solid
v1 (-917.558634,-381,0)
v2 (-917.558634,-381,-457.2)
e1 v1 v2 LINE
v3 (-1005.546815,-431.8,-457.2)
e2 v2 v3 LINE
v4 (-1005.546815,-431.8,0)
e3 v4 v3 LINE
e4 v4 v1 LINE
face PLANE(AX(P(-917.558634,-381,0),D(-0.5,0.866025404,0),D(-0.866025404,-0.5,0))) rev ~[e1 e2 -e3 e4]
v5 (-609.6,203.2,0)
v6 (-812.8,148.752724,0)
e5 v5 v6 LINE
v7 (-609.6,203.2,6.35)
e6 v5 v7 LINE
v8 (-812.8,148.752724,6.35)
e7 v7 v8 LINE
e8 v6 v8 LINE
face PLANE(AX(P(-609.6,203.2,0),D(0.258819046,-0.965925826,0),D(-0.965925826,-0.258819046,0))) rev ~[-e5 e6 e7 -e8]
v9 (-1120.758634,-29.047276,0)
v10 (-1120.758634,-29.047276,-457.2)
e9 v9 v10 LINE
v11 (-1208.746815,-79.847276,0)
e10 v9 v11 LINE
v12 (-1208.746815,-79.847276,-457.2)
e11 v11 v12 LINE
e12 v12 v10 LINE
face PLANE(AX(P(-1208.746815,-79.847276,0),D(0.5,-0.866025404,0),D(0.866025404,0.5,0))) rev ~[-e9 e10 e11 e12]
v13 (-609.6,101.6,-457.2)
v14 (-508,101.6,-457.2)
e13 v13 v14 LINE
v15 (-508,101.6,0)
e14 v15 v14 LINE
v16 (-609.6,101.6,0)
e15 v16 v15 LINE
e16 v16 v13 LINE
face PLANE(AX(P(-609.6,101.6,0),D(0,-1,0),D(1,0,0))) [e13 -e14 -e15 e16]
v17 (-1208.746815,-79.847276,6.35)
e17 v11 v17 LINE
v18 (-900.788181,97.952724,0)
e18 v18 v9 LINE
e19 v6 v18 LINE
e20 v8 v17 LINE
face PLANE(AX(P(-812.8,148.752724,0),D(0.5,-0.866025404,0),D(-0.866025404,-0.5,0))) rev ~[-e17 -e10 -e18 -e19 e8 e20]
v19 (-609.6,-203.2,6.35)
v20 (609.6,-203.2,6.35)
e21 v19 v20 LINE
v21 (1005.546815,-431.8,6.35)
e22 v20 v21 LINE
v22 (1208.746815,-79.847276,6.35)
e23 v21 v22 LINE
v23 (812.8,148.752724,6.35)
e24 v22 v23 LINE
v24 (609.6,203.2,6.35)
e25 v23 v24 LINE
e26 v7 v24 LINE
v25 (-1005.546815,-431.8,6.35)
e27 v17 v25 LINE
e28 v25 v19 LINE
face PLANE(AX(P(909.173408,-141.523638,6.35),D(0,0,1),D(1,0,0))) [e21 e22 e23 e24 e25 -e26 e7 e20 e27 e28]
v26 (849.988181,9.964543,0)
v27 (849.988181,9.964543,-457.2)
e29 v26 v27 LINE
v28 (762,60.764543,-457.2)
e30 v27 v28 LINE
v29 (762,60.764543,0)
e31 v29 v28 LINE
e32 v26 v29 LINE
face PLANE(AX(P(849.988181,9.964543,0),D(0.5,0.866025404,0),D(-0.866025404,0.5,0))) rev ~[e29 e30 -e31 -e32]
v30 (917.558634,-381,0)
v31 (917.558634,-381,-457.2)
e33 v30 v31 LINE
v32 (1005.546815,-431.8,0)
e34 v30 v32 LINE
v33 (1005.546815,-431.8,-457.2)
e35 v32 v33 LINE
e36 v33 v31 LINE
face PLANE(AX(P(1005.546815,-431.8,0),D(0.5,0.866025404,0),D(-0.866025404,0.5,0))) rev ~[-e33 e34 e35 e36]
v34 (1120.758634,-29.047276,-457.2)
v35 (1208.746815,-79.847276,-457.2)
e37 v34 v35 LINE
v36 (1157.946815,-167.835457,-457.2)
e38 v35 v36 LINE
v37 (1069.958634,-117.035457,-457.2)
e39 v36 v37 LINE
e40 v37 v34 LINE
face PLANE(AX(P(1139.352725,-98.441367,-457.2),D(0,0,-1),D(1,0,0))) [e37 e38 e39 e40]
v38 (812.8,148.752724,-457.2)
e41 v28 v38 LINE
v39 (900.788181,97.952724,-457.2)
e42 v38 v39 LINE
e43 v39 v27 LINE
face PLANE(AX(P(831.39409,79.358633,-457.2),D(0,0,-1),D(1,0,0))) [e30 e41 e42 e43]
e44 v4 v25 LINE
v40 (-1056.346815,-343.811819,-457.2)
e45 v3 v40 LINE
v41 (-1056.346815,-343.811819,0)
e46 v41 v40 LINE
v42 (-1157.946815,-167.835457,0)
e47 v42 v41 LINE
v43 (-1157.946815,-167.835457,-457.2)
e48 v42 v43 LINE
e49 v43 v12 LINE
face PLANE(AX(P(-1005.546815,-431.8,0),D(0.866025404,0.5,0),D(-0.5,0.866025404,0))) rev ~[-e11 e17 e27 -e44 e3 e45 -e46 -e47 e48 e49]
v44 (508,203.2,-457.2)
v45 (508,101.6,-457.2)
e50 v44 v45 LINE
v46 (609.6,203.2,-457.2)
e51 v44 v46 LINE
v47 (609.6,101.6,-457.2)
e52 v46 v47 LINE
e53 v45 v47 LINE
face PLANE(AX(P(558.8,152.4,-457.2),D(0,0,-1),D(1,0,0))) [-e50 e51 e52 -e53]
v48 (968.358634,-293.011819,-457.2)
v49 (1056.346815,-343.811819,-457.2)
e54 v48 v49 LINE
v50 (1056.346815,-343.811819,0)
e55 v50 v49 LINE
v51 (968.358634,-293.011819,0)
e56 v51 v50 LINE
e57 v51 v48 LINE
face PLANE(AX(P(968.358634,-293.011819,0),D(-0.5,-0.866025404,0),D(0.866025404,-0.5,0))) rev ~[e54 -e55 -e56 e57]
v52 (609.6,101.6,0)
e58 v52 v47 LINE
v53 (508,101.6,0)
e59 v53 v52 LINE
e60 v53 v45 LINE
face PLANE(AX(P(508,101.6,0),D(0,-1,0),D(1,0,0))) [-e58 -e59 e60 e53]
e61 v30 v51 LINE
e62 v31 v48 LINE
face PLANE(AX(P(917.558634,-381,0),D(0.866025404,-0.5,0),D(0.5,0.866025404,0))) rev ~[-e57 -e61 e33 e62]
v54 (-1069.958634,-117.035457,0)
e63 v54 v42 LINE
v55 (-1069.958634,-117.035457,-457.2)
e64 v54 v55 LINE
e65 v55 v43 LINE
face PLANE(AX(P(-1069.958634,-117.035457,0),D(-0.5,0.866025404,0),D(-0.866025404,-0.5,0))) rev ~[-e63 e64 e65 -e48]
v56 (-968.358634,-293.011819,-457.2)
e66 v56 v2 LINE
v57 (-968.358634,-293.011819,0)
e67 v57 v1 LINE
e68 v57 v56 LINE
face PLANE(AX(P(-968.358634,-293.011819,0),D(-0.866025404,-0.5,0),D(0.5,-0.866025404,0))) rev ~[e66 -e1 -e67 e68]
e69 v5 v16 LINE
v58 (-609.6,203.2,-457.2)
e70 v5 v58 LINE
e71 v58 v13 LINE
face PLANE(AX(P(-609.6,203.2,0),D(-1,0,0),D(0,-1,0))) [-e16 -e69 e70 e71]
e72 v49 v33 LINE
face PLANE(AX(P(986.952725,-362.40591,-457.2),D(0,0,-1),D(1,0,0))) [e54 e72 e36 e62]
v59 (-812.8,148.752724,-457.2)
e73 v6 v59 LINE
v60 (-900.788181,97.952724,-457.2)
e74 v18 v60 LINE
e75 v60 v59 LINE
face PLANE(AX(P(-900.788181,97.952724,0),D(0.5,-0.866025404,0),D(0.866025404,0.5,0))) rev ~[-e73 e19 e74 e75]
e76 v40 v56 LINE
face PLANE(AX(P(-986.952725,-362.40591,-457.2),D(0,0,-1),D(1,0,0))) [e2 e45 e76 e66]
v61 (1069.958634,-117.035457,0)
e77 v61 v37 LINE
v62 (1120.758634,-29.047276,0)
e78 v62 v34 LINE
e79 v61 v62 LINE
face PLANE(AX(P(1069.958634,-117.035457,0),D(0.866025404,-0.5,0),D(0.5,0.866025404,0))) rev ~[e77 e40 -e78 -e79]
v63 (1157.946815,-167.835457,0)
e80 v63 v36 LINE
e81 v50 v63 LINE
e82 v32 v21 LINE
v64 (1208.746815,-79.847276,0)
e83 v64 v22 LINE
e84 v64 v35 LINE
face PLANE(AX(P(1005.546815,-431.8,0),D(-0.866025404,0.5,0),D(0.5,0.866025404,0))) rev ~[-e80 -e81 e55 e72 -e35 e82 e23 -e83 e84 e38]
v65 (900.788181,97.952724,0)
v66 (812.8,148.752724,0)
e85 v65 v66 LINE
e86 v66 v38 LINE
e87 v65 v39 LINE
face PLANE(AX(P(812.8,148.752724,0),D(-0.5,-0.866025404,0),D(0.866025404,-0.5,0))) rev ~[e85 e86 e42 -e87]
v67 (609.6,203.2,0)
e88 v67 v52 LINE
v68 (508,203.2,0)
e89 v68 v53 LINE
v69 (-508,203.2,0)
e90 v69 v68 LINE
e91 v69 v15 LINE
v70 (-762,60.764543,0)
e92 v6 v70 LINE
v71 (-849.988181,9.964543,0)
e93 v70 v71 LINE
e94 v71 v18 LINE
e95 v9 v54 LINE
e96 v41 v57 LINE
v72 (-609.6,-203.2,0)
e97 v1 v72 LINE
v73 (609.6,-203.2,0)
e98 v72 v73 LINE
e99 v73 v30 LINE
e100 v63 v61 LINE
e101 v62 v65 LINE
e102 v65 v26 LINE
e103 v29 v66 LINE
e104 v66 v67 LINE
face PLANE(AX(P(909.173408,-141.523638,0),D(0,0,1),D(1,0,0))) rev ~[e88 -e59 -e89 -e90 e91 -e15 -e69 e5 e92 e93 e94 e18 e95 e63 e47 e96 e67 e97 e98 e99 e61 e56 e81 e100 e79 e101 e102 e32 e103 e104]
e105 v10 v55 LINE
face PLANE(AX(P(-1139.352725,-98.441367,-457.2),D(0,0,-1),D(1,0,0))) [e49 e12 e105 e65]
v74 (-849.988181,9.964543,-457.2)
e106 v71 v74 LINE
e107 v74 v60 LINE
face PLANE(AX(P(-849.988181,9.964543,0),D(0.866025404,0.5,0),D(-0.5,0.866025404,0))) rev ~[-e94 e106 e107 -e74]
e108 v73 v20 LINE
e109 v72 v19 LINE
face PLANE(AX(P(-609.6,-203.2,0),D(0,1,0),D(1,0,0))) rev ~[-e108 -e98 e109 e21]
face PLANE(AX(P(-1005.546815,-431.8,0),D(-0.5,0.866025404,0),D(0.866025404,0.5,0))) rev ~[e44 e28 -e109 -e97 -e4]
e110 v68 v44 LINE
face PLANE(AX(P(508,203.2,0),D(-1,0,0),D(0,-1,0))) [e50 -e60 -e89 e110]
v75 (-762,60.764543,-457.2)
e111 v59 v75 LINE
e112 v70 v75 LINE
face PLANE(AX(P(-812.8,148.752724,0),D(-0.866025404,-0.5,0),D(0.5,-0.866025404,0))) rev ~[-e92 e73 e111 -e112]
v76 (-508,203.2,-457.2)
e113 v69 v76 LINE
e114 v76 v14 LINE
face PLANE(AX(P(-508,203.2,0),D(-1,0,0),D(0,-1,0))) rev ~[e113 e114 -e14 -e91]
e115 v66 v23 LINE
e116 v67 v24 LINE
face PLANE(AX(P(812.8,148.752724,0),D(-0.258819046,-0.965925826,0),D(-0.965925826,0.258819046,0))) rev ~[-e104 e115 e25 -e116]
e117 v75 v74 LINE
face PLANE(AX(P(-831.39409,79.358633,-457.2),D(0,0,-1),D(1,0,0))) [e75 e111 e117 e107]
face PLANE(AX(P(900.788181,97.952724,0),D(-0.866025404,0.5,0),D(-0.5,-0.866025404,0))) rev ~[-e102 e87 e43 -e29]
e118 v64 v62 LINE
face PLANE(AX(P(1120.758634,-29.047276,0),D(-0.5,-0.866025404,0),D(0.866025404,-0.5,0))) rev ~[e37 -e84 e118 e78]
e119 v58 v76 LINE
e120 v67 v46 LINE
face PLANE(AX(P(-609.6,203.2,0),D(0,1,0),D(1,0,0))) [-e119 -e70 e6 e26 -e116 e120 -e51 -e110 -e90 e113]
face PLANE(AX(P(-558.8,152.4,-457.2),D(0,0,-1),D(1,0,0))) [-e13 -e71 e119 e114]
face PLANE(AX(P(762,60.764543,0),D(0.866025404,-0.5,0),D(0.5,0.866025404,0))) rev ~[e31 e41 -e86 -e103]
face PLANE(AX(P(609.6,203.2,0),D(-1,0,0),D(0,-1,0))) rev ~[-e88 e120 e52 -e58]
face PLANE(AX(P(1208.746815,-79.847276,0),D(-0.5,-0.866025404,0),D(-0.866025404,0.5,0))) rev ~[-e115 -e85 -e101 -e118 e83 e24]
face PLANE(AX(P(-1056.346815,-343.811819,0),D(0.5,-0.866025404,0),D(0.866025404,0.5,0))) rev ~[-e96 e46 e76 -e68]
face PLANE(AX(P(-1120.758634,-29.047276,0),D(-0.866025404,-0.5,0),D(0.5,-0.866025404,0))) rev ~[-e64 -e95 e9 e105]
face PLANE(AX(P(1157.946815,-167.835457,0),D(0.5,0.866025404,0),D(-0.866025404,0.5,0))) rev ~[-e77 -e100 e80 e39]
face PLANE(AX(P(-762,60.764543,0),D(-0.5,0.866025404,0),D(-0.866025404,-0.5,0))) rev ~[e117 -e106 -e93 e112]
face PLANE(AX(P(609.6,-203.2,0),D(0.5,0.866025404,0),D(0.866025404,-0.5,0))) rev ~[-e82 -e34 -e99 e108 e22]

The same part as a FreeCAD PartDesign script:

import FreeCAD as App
import Part
import Sketcher
Q = App.Units.Quantity


def add_polygon(sketch, points):
    """Adds a closed chain of lines whose ends are joined by coincident constraints."""
    first, n = sketch.GeometryCount, len(points)
    for a, b in zip(points, points[1:] + points[:1]):
        sketch.addGeometry(Part.LineSegment(App.Vector(*a, 0), App.Vector(*b, 0)), False)
    for i in range(n):
        sketch.addConstraint(Sketcher.Constraint("Coincident", first + i, 2, first + (i + 1) % n, 1))

doc = App.newDocument("Part")
params = doc.addObject("Spreadsheet::Sheet", "Params")
for row, (alias, value) in enumerate([
    ("sketch1_width", "48 in"),
    ("sketch1_length", "18 in"),
    ("sketch1_length2", "16 in"),
    ("pad1_length", "0.25 in"),
    ("sketch2_width", "4 in"),
    ("sketch2_length", "4 in"),
    ("pad2_length", "18 in"),
], start=1):
    params.set(f"A{row}", alias)
    params.set(f"B{row}", "=" + value)
    params.setAlias(f"B{row}", alias)

body = doc.addObject("PartDesign::Body", "Body")

sketch1 = body.newObject("Sketcher::SketchObject", "Sketch")
sketch1.AttachmentSupport = (doc.getObject("XY_Plane"), [""])
sketch1.MapMode = "FlatFace"
add_polygon(sketch1, [(610, -203), (1006, -432), (1209, -80), (813, 149), (610, 203), (-610, 203), (-813, 149), (-1209, -80), (-1006, -432), (-610, -203)])
sketch1.addConstraint(Sketcher.Constraint("Horizontal", 4))
sketch1.addConstraint(Sketcher.Constraint("Horizontal", 9))
sketch1.addConstraint(Sketcher.Constraint("Symmetric", 3, 2, 8, 2, -1, 1))
sketch1.addConstraint(Sketcher.Constraint("Symmetric", 2, 2, 5, 2, -2))
sketch1.addConstraint(Sketcher.Constraint("Symmetric", 1, 2, 6, 2, -2))
sketch1.addConstraint(Sketcher.Constraint("Symmetric", 0, 2, 7, 2, -2))
sketch1.addConstraint(Sketcher.Constraint("Perpendicular", 0, 1))
sketch1.addConstraint(Sketcher.Constraint("Perpendicular", 1, 2))
sketch1.addConstraint(Sketcher.Constraint("Perpendicular", 7, 8))
sketch1.addConstraint(Sketcher.Constraint("Vertical", 4, 2, 8, 2))
sketch1.addConstraint(Sketcher.Constraint("Equal", 0, 2))
sketch1.addConstraint(Sketcher.Constraint("DistanceX", 4, 2, 4, 1, Q("48 in")))
sketch1.addConstraint(Sketcher.Constraint("Distance", 0, Q("18 in")))
sketch1.addConstraint(Sketcher.Constraint("Distance", 1, Q("16 in")))
sketch1.addConstraint(Sketcher.Constraint("DistanceY", 0, 2, -1, 1, Q("17 in")))
sketch1.addConstraint(Sketcher.Constraint("DistanceX", -1, 1, 2, 2, Q("32 in")))
sketch1.setExpression("Constraints[21]", "Params.sketch1_width")
sketch1.setExpression("Constraints[22]", "Params.sketch1_length")
sketch1.setExpression("Constraints[23]", "Params.sketch1_length2")
pad1 = body.newObject("PartDesign::Pad", "Pad")
pad1.Profile = sketch1
pad1.setExpression("Length", "Params.pad1_length")

sketch2 = body.newObject("Sketcher::SketchObject", "Sketch001")
sketch2.AttachmentSupport = (doc.getObject("XY_Plane"), [""])
sketch2.MapMode = "FlatFace"
add_polygon(sketch2, [(-968, -293), (-918, -381), (-1006, -432), (-1056, -344)])
add_polygon(sketch2, [(-1209, -80), (-1121, -29), (-1070, -117), (-1158, -168)])
add_polygon(sketch2, [(-901, 98), (-813, 149), (-762, 61), (-850, 10)])
add_polygon(sketch2, [(-610, 102), (-610, 203), (-508, 203), (-508, 102)])
add_polygon(sketch2, [(968, -293), (1056, -344), (1006, -432), (918, -381)])
add_polygon(sketch2, [(1121, -29), (1209, -80), (1158, -168), (1070, -117)])
add_polygon(sketch2, [(813, 149), (901, 98), (850, 10), (762, 61)])
add_polygon(sketch2, [(508, 102), (508, 203), (610, 203), (610, 102)])
sketch2.addConstraint(Sketcher.Constraint("Vertical", 12))
sketch2.addConstraint(Sketcher.Constraint("Horizontal", 13))
sketch2.addConstraint(Sketcher.Constraint("Vertical", 14))
sketch2.addConstraint(Sketcher.Constraint("Horizontal", 15))
sketch2.addConstraint(Sketcher.Constraint("Vertical", 28))
sketch2.addConstraint(Sketcher.Constraint("Horizontal", 29))
sketch2.addConstraint(Sketcher.Constraint("Vertical", 30))
sketch2.addConstraint(Sketcher.Constraint("Horizontal", 31))
sketch2.addConstraint(Sketcher.Constraint("Symmetric", 2, 2, 16, 2, -2))
sketch2.addConstraint(Sketcher.Constraint("Symmetric", 1, 2, 17, 2, -2))
sketch2.addConstraint(Sketcher.Constraint("Symmetric", 0, 2, 18, 2, -2))
sketch2.addConstraint(Sketcher.Constraint("Symmetric", 3, 2, 19, 2, -2))
sketch2.addConstraint(Sketcher.Constraint("Symmetric", 7, 2, 20, 2, -2))
sketch2.addConstraint(Sketcher.Constraint("Symmetric", 6, 2, 21, 2, -2))
sketch2.addConstraint(Sketcher.Constraint("Symmetric", 5, 2, 22, 2, -2))
sketch2.addConstraint(Sketcher.Constraint("Symmetric", 4, 2, 23, 2, -2))
sketch2.addConstraint(Sketcher.Constraint("Symmetric", 11, 2, 24, 2, -2))
sketch2.addConstraint(Sketcher.Constraint("Symmetric", 10, 2, 25, 2, -2))
sketch2.addConstraint(Sketcher.Constraint("Symmetric", 9, 2, 26, 2, -2))
sketch2.addConstraint(Sketcher.Constraint("Symmetric", 8, 2, 27, 2, -2))
sketch2.addConstraint(Sketcher.Constraint("Symmetric", 13, 2, 28, 2, -2))
sketch2.addConstraint(Sketcher.Constraint("Symmetric", 15, 2, 30, 2, -2))
sketch2.addConstraint(Sketcher.Constraint("Perpendicular", 0, 1))
sketch2.addConstraint(Sketcher.Constraint("Perpendicular", 1, 2))
sketch2.addConstraint(Sketcher.Constraint("Perpendicular", 2, 3))
sketch2.addConstraint(Sketcher.Constraint("Parallel", 3, 4))
sketch2.addConstraint(Sketcher.Constraint("Perpendicular", 4, 5))
sketch2.addConstraint(Sketcher.Constraint("Perpendicular", 5, 6))
sketch2.addConstraint(Sketcher.Constraint("Perpendicular", 6, 7))
sketch2.addConstraint(Sketcher.Constraint("Perpendicular", 7, 8))
sketch2.addConstraint(Sketcher.Constraint("Perpendicular", 8, 9))
sketch2.addConstraint(Sketcher.Constraint("Perpendicular", 9, 10))
sketch2.addConstraint(Sketcher.Constraint("Perpendicular", 10, 11))
sketch2.addConstraint(Sketcher.Constraint("Equal", 31, 12))
sketch2.addConstraint(Sketcher.Constraint("Equal", 0, 1))
sketch2.addConstraint(Sketcher.Constraint("Equal", 3, 4))
sketch2.addConstraint(Sketcher.Constraint("Equal", 4, 5))
sketch2.addConstraint(Sketcher.Constraint("Equal", 7, 8))
sketch2.addConstraint(Sketcher.Constraint("Equal", 8, 9))
sketch2.addConstraint(Sketcher.Constraint("DistanceX", 13, 1, 13, 2, Q("4 in")))
sketch2.addConstraint(Sketcher.Constraint("Distance", 0, Q("4 in")))
sketch2.addConstraint(Sketcher.Constraint("DistanceY", 0, 2, -1, 1, Q("15 in")))
sketch2.addConstraint(Sketcher.Constraint("DistanceY", 1, 2, -1, 1, Q("17 in")))
sketch2.addConstraint(Sketcher.Constraint("DistanceX", 8, 2, -1, 1, Q("32 in")))
sketch2.addConstraint(Sketcher.Constraint("DistanceX", 12, 2, -1, 1, Q("24 in")))
sketch2.addConstraint(Sketcher.Constraint("DistanceY", -1, 1, 12, 2, Q("8 in")))
sketch2.addConstraint(Sketcher.Constraint("DistanceX", 4, 2, 3, 2, Q("6 in")))
sketch2.addConstraint(Sketcher.Constraint("DistanceY", 4, 2, 8, 2, Q("7 in")))
sketch2.addConstraint(Sketcher.Constraint("DistanceY", 3, 2, 5, 2, 175.976362))
sketch2.addConstraint(Sketcher.Constraint("DistanceX", 0, 2, -1, 1, 917.558634))
sketch2.setExpression("Constraints[71]", "Params.sketch2_width")
sketch2.setExpression("Constraints[72]", "Params.sketch2_length")
pad2 = body.newObject("PartDesign::Pad", "Pad001")
pad2.Profile = sketch2
pad2.setExpression("Length", "Params.pad2_length")
pad2.Reversed = True

doc.recompute()
